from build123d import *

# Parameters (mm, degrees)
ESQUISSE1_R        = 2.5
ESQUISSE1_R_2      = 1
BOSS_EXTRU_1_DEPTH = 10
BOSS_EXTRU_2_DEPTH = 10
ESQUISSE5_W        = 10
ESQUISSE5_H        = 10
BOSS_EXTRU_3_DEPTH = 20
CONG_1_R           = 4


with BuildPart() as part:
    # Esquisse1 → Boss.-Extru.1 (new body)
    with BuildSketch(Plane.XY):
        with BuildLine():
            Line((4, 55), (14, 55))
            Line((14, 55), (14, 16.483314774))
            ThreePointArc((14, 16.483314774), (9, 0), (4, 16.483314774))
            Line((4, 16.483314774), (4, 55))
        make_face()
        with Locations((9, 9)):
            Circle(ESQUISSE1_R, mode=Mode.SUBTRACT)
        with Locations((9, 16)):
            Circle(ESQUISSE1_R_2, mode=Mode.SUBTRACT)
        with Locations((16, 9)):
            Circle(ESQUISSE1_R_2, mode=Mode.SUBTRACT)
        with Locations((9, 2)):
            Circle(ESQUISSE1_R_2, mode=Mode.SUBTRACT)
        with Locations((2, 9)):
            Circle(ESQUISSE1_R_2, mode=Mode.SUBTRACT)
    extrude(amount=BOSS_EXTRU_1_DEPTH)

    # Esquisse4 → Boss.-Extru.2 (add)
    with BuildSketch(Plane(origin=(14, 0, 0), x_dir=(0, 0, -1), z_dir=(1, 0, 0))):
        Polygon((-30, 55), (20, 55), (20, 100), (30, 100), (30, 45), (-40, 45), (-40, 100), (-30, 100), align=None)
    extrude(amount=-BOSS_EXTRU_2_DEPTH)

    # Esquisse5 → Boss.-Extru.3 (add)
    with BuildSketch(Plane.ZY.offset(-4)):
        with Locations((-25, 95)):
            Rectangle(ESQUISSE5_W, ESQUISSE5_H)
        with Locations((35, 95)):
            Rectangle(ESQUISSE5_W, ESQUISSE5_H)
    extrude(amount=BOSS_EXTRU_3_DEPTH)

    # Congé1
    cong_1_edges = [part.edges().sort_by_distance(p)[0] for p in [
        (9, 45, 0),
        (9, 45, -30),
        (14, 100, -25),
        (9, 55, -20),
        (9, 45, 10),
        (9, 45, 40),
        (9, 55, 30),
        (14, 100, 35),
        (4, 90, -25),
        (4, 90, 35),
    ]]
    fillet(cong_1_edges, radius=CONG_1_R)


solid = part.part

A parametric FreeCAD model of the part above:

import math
import FreeCAD as App
import Part
import Sketcher


def edges_at(feature, points):
    """Names of the edges that pass closest to the given points."""
    edges = feature.Shape.Edges
    near = lambda p: min(range(len(edges)), key=lambda i: edges[i].distToShape(Part.Vertex(*p))[0])
    return sorted({f"Edge{near(p) + 1}" for p in points})


def add_polygon(sketch, points):
    """Adds a closed chain of lines whose ends are joined by coincident constraints."""
    first, n = sketch.GeometryCount, len(points)
    for a, b in zip(points, points[1:] + points[:1]):
        sketch.addGeometry(Part.LineSegment(App.Vector(*a, 0), App.Vector(*b, 0)), False)
    for i in range(n):
        sketch.addConstraint(Sketcher.Constraint("Coincident", first + i, 2, first + (i + 1) % n, 1))

doc = App.newDocument("Part")
body = doc.addObject("PartDesign::Body", "Body")

# Sketch on XY plane
sketch1 = body.newObject("Sketcher::SketchObject", "Sketch")
sketch1.AttachmentSupport = (doc.getObject("XY_Plane"), [""])
sketch1.MapMode = "FlatFace"
sketch1.addGeometry(Part.LineSegment(App.Vector(14, 55, 0), App.Vector(4, 55, 0)), False)
sketch1.addGeometry(Part.LineSegment(App.Vector(4, 55, 0), App.Vector(4, 16.5, 0)), False)
sketch1.addGeometry(Part.ArcOfCircle(Part.Circle(App.Vector(9, 9, 0), App.Vector(0, 0, 1), 9), math.radians(124), math.radians(416)), False)
sketch1.addGeometry(Part.LineSegment(App.Vector(14, 16.5, 0), App.Vector(14, 55, 0)), False)
sketch1.addGeometry(Part.Circle(App.Vector(9, 2, 0), App.Vector(0, 0, 1), 1), False)
sketch1.addGeometry(Part.Circle(App.Vector(16, 9, 0), App.Vector(0, 0, 1), 1), False)
sketch1.addGeometry(Part.Circle(App.Vector(9, 9, 0), App.Vector(0, 0, 1), 2.5), False)
sketch1.addGeometry(Part.Circle(App.Vector(2, 9, 0), App.Vector(0, 0, 1), 1), False)
sketch1.addGeometry(Part.Circle(App.Vector(9, 16, 0), App.Vector(0, 0, 1), 1), False)
sketch1.addConstraint(Sketcher.Constraint("Coincident", 0, 2, 1, 1))
sketch1.addConstraint(Sketcher.Constraint("Coincident", 1, 2, 2, 1))
sketch1.addConstraint(Sketcher.Constraint("Coincident", 2, 2, 3, 1))
sketch1.addConstraint(Sketcher.Constraint("Coincident", 3, 2, 0, 1))
sketch1.addConstraint(Sketcher.Constraint("Horizontal", 0))
sketch1.addConstraint(Sketcher.Constraint("Vertical", 1))
sketch1.addConstraint(Sketcher.Constraint("Vertical", 3))
sketch1.addConstraint(Sketcher.Constraint("Coincident", 6, 3, 2, 3))
sketch1.addConstraint(Sketcher.Constraint("Equal", 4, 5))
sketch1.addConstraint(Sketcher.Constraint("Equal", 5, 7))
sketch1.addConstraint(Sketcher.Constraint("Equal", 7, 8))
sketch1.addConstraint(Sketcher.Constraint("Horizontal", 2, 3, 5, 3))
sketch1.addConstraint(Sketcher.Constraint("Horizontal", 6, 3, 7, 3))
sketch1.addConstraint(Sketcher.Constraint("Horizontal", 1, 2, 2, 2))
sketch1.addConstraint(Sketcher.Constraint("Vertical", 2, 3, 4, 3))
sketch1.addConstraint(Sketcher.Constraint("Vertical", 6, 3, 8, 3))
sketch1.addConstraint(Sketcher.Constraint("Diameter", 4, 2.0))
sketch1.addConstraint(Sketcher.Constraint("Diameter", 6, 5.0))
sketch1.addConstraint(Sketcher.Constraint("Radius", 2, 9.0))
sketch1.addConstraint(Sketcher.Constraint("DistanceX", 0, 2, 0, 1, 10.0))
sketch1.addConstraint(Sketcher.Constraint("DistanceX", -1, 1, 2, 3, 9.0))
sketch1.addConstraint(Sketcher.Constraint("DistanceY", -1, 1, 2, 3, 9.0))
sketch1.addConstraint(Sketcher.Constraint("DistanceY", -1, 1, 4, 3, 2.0))
sketch1.addConstraint(Sketcher.Constraint("DistanceX", -1, 1, 5, 3, 16.0))
sketch1.addConstraint(Sketcher.Constraint("DistanceX", -1, 1, 7, 3, 2.0))
sketch1.addConstraint(Sketcher.Constraint("DistanceY", -1, 1, 8, 3, 16.0))
sketch1.addConstraint(Sketcher.Constraint("DistanceY", -1, 1, 0, 2, 55.0))
pad1 = body.newObject("PartDesign::Pad", "Pad")
pad1.Profile = sketch1
pad1.Length = 10

# Sketch on YZ plane
sketch2 = body.newObject("Sketcher::SketchObject", "Sketch001")
sketch2.AttachmentSupport = (doc.getObject("YZ_Plane"), [""])
sketch2.MapMode = "FlatFace"
sketch2.AttachmentOffset = App.Placement(App.Vector(0, 0, 14), App.Rotation())
add_polygon(sketch2, [(55, -20), (55, 30), (100, 30), (100, 40), (45, 40), (45, -30), (100, -30), (100, -20)])  # lines 0-7
sketch2.addConstraint(Sketcher.Constraint("Vertical", 0))
sketch2.addConstraint(Sketcher.Constraint("Horizontal", 1))
sketch2.addConstraint(Sketcher.Constraint("Vertical", 2))
sketch2.addConstraint(Sketcher.Constraint("Horizontal", 3))
sketch2.addConstraint(Sketcher.Constraint("Vertical", 4))
sketch2.addConstraint(Sketcher.Constraint("Horizontal", 5))
sketch2.addConstraint(Sketcher.Constraint("Vertical", 6))
sketch2.addConstraint(Sketcher.Constraint("Horizontal", 7))
sketch2.addConstraint(Sketcher.Constraint("Symmetric", 1, 2, 5, 2, -1))
sketch2.addConstraint(Sketcher.Constraint("Equal", 2, 6))
sketch2.addConstraint(Sketcher.Constraint("DistanceX", 1, 1, 1, 2, 45.0))
sketch2.addConstraint(Sketcher.Constraint("DistanceX", 3, 2, 3, 1, 55.0))
sketch2.addConstraint(Sketcher.Constraint("DistanceY", 0, 1, 0, 2, 50.0))
sketch2.addConstraint(Sketcher.Constraint("DistanceY", 2, 1, 2, 2, 10.0))
sketch2.addConstraint(Sketcher.Constraint("DistanceX", -1, 1, 0, 2, 55.0))
pad2 = body.newObject("PartDesign::Pad", "Pad001")
pad2.Profile = sketch2
pad2.Length = 10
pad2.Reversed = True

# Sketch on YZ plane
sketch3 = body.newObject("Sketcher::SketchObject", "Sketch002")
sketch3.AttachmentSupport = (doc.getObject("YZ_Plane"), [""])
sketch3.MapMode = "FlatFace"
sketch3.AttachmentOffset = App.Placement(App.Vector(0, 0, 4), App.Rotation())
add_polygon(sketch3, [(100, -30), (90, -30), (90, -20), (100, -20)])  # lines 0-3
add_polygon(sketch3, [(100, 30), (90, 30), (90, 40), (100, 40)])  # lines 4-7
sketch3.addConstraint(Sketcher.Constraint("Horizontal", 0))
sketch3.addConstraint(Sketcher.Constraint("Vertical", 1))
sketch3.addConstraint(Sketcher.Constraint("Horizontal", 2))
sketch3.addConstraint(Sketcher.Constraint("Vertical", 3))
sketch3.addConstraint(Sketcher.Constraint("Horizontal", 4))
sketch3.addConstraint(Sketcher.Constraint("Vertical", 5))
sketch3.addConstraint(Sketcher.Constraint("Horizontal", 6))
sketch3.addConstraint(Sketcher.Constraint("Vertical", 7))
sketch3.addConstraint(Sketcher.Constraint("Symmetric", 0, 2, 4, 2, -1))
sketch3.addConstraint(Sketcher.Constraint("Vertical", 3, 2, 6, 2))
sketch3.addConstraint(Sketcher.Constraint("Equal", 6, 1))
sketch3.addConstraint(Sketcher.Constraint("Equal", 3, 5))
sketch3.addConstraint(Sketcher.Constraint("DistanceX", 0, 2, 0, 1, 10.0))
sketch3.addConstraint(Sketcher.Constraint("DistanceX", -1, 1, 0, 2, 90.0))
sketch3.addConstraint(Sketcher.Constraint("DistanceY", 0, 2, -1, 1, 30.0))
pad3 = body.newObject("PartDesign::Pad", "Pad002")
pad3.Profile = sketch3
pad3.Length = 20
pad3.Reversed = True
doc.recompute()

fillet = body.newObject("PartDesign::Fillet", "Fillet")
fillet.Base = (pad3, edges_at(pad3, [
    (9, 45, 0),
    (9, 45, -30),
    (14, 100, -25),
    (9, 55, -20),
    (9, 45, 10),
    (9, 45, 40),
    (9, 55, 30),
    (14, 100, 35),
    (4, 90, -25),
    (4, 90, 35),
]))
fillet.Radius = 4

doc.recompute()
